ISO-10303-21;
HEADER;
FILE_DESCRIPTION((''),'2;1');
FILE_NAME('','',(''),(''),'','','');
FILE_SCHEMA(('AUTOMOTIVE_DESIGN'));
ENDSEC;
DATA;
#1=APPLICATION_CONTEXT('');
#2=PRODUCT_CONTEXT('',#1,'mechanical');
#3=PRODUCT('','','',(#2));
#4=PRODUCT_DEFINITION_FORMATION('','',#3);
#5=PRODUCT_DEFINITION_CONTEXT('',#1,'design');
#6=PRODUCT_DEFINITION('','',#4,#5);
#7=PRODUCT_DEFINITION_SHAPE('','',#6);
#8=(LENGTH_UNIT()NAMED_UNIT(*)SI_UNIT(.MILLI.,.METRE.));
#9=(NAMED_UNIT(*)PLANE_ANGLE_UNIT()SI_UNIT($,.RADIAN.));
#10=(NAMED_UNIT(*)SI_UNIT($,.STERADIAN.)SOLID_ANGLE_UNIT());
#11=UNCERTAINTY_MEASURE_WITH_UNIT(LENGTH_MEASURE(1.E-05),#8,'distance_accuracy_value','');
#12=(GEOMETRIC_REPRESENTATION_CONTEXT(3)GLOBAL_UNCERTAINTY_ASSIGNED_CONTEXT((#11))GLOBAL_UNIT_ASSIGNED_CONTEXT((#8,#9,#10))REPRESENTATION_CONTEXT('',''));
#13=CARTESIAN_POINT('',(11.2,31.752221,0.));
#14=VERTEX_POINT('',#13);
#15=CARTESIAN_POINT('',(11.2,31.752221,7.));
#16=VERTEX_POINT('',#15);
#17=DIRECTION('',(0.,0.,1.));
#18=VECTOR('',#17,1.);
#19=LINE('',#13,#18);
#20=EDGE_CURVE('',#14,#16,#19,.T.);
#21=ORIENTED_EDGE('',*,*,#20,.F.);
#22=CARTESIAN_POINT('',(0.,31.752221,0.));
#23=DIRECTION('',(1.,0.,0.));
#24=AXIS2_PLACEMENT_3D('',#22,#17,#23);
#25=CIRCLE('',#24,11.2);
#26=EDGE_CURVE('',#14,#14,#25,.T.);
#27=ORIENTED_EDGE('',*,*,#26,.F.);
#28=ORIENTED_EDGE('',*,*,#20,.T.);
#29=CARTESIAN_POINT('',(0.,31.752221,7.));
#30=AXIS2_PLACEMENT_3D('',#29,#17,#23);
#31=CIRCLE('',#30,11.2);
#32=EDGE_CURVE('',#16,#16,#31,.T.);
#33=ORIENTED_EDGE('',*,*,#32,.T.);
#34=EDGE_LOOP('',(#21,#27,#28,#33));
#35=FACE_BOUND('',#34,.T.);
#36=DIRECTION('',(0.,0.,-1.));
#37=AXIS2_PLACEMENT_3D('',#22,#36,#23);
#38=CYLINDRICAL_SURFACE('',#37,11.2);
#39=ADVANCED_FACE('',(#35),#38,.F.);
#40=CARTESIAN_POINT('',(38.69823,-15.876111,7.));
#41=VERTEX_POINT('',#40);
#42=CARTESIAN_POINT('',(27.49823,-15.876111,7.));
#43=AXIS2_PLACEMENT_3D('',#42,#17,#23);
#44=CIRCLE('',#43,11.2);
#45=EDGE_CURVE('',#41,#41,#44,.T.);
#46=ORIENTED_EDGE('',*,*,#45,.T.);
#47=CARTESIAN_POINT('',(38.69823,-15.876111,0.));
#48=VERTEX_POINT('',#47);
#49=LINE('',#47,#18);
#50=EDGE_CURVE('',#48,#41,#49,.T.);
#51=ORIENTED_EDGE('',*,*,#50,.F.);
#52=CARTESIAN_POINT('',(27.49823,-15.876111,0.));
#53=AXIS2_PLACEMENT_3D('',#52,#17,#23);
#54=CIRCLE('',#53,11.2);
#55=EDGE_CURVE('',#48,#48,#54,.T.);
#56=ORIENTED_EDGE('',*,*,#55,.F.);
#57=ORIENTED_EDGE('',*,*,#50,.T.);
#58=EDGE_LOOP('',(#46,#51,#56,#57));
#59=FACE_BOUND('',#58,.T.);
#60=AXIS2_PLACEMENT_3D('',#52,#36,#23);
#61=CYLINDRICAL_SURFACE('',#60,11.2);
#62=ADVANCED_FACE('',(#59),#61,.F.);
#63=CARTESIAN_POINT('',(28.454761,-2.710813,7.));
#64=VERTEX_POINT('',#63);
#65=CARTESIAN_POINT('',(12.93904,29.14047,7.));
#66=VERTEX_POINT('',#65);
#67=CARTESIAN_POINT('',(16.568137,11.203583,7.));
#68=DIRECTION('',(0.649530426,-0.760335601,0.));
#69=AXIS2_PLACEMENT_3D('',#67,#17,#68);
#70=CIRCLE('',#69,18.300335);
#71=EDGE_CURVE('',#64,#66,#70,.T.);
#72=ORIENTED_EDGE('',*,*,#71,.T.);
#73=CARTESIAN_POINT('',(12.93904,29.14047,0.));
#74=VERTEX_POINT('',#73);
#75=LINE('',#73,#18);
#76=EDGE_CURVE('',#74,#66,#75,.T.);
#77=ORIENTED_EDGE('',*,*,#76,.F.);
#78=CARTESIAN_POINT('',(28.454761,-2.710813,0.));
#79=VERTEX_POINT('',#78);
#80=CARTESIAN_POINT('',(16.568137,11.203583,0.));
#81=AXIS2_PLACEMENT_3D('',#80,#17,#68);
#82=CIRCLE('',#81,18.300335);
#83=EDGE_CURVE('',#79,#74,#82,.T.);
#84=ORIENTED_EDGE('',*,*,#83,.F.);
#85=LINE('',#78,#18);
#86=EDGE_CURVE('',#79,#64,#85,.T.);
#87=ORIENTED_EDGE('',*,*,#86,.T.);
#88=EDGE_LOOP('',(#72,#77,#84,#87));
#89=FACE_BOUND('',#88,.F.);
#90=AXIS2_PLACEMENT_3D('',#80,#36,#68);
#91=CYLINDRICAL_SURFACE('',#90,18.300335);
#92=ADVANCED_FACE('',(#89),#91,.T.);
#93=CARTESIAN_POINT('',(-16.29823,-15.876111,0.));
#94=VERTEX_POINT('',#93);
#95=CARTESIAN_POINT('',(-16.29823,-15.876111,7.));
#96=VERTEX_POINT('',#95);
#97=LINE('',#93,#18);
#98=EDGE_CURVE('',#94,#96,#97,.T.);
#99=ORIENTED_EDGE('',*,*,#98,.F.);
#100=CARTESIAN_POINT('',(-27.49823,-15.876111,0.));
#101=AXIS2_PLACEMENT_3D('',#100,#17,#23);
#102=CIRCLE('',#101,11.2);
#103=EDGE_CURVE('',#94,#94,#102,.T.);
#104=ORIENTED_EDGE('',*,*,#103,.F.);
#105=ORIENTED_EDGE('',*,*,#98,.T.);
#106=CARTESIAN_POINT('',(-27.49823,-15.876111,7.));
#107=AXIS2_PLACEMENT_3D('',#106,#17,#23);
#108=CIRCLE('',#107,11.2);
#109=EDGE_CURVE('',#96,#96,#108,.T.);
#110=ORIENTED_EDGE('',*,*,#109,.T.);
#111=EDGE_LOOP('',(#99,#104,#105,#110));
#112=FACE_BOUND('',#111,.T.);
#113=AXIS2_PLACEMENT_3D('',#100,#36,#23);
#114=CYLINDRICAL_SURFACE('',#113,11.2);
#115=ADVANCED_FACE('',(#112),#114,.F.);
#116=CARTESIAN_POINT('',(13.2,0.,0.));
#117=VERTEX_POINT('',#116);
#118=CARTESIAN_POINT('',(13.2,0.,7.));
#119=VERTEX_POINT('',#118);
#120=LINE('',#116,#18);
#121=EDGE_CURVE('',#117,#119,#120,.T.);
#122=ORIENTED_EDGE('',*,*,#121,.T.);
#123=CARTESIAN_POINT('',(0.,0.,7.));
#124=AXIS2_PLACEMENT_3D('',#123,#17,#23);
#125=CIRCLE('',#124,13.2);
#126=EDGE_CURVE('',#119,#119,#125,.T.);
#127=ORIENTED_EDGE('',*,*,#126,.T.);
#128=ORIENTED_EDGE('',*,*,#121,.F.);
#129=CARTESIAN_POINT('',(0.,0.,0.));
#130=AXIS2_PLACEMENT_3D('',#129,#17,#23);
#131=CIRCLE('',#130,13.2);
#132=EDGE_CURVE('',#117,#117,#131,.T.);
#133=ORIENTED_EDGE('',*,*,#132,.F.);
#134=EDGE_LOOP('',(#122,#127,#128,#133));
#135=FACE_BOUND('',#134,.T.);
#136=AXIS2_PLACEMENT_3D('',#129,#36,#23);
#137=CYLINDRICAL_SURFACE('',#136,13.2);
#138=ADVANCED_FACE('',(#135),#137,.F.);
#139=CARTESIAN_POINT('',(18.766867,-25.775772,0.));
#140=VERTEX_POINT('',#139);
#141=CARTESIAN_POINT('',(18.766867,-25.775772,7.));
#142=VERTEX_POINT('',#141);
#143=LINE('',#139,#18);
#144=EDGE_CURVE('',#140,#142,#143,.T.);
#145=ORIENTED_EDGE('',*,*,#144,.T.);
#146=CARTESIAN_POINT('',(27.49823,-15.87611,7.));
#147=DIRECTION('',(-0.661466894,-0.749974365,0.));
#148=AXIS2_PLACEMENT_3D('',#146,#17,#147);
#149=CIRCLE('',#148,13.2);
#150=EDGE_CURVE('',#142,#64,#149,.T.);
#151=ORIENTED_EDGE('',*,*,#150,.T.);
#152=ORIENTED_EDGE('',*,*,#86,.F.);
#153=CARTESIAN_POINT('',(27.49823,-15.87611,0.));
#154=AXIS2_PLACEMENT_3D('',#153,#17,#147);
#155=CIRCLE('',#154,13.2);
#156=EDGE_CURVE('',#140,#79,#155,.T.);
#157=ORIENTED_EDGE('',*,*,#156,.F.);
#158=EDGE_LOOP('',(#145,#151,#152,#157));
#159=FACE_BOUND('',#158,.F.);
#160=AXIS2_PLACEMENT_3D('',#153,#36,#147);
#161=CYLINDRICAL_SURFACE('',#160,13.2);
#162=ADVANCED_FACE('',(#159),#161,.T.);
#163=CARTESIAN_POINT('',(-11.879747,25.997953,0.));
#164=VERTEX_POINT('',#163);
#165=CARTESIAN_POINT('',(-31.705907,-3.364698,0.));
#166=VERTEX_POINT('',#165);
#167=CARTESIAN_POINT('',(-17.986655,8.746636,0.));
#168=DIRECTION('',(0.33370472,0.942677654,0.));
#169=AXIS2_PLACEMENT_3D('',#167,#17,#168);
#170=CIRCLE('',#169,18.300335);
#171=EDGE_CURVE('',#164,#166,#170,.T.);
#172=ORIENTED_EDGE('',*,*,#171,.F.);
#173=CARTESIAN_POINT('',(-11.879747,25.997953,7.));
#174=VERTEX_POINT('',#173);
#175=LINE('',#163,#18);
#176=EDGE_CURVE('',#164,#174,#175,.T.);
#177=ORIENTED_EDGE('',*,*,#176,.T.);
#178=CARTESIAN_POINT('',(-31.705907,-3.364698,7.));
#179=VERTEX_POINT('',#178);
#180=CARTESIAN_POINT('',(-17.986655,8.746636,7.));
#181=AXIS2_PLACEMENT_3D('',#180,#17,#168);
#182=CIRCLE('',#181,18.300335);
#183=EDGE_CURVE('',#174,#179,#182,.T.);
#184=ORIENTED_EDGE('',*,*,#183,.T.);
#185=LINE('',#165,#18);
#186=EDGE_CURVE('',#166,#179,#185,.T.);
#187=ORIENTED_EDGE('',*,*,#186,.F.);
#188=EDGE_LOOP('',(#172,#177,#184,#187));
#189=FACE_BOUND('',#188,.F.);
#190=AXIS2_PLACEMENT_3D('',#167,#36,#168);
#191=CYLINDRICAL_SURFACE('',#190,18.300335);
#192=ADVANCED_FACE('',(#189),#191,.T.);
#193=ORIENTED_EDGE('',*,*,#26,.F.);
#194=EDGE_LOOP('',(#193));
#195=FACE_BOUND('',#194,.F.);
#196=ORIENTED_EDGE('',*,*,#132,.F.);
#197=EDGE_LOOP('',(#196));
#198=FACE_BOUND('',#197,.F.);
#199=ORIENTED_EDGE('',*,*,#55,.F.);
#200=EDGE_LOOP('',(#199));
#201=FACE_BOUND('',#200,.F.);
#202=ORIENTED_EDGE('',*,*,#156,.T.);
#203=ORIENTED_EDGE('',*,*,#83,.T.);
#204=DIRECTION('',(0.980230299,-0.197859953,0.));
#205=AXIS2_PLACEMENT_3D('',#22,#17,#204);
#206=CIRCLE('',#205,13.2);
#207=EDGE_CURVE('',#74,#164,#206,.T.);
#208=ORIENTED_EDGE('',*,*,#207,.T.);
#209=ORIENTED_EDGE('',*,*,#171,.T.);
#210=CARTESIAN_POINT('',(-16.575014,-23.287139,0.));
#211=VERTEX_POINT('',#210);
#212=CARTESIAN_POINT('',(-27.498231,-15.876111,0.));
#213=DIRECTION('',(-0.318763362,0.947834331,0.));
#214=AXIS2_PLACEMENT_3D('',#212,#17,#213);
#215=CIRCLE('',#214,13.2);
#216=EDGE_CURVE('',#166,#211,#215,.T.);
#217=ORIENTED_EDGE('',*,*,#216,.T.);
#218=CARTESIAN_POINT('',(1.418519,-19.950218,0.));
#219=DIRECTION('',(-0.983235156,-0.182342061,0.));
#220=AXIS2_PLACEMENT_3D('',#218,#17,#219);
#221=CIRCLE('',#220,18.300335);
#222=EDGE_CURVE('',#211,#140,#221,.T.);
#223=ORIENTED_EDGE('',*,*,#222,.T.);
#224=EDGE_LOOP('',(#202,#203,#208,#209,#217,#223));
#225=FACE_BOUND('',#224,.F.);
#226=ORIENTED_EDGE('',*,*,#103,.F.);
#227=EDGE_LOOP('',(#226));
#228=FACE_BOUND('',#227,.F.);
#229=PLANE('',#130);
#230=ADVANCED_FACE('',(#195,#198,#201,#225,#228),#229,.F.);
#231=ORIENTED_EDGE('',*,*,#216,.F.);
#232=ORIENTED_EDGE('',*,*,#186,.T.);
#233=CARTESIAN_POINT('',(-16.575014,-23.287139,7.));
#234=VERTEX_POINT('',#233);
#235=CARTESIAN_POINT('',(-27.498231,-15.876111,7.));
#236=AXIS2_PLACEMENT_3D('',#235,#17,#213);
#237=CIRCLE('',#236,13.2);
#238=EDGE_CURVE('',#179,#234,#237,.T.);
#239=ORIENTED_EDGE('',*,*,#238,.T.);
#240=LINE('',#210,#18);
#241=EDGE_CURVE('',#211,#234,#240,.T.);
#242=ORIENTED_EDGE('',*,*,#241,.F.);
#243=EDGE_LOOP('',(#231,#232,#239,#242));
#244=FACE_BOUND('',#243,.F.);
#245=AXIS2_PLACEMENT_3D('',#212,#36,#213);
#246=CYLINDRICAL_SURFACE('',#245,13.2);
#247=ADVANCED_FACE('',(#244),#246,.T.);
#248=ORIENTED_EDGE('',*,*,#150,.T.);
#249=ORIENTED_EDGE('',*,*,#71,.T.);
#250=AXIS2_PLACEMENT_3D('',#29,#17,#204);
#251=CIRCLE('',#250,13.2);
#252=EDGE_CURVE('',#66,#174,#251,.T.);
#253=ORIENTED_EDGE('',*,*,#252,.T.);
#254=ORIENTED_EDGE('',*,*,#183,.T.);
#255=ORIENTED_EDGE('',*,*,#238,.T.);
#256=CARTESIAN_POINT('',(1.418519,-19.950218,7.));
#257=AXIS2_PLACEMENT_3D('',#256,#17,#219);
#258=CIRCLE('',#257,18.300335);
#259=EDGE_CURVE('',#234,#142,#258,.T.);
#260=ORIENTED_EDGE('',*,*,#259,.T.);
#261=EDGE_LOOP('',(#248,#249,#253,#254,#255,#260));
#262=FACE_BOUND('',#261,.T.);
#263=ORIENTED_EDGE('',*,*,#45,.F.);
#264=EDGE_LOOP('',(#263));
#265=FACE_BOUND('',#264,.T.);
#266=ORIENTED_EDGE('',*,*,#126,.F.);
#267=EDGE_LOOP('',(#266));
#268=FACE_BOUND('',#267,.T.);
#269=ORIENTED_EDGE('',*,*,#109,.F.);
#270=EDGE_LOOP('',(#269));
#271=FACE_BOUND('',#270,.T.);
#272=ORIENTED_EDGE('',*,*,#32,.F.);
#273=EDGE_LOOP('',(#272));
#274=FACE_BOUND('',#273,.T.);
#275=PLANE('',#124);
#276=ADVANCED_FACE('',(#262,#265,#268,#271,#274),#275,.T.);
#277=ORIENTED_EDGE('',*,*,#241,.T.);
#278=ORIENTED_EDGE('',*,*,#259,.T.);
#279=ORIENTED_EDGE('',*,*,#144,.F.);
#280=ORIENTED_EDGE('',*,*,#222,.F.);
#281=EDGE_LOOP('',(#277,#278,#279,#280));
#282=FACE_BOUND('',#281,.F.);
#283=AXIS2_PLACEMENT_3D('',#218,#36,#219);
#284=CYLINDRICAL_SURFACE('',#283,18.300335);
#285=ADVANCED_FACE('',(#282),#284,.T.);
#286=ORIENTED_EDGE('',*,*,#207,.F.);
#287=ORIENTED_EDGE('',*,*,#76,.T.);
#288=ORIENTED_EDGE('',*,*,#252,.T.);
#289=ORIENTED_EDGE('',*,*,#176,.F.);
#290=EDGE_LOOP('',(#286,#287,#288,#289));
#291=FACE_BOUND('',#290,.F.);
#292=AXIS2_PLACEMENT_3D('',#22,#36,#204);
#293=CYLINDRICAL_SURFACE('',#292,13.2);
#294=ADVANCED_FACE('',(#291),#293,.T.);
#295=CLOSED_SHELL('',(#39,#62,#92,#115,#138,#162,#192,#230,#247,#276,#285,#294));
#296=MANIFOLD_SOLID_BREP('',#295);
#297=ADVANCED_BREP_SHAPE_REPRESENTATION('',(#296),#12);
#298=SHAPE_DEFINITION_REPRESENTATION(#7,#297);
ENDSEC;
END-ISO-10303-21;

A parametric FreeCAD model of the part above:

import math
import FreeCAD as App
import Part
import Sketcher
Q = App.Units.Quantity

doc = App.newDocument("Part")
body = doc.addObject("PartDesign::Body", "Body")

sketch1 = body.newObject("Sketcher::SketchObject", "Sketch")
sketch1.AttachmentSupport = (doc.getObject("XY_Plane"), [""])
sketch1.MapMode = "FlatFace"
sketch1.addGeometry(Part.ArcOfCircle(Part.Circle(App.Vector(16.568137, 11.203583, 0), App.Vector(0, 0, 1), 18.300335), math.radians(-49.493793), math.radians(101.438013)), False)
sketch1.addGeometry(Part.ArcOfCircle(Part.Circle(App.Vector(0, 31.752221, 0), App.Vector(0, 0, 1), 13.2), math.radians(-11.411843), math.radians(205.844449)), False)
sketch1.addGeometry(Part.ArcOfCircle(Part.Circle(App.Vector(-17.986655, 8.746636, 0), App.Vector(0, 0, 1), 18.300335), math.radians(70.506208), math.radians(221.438014)), False)
sketch1.addGeometry(Part.ArcOfCircle(Part.Circle(App.Vector(-27.498231, -15.876111, 0), App.Vector(0, 0, 1), 13.2), math.radians(108.588155), math.radians(325.844453)), False)
sketch1.addGeometry(Part.ArcOfCircle(Part.Circle(App.Vector(1.418519, -19.950218, 0), App.Vector(0, 0, 1), 18.300335), math.radians(-169.493792), math.radians(-18.561987)), False)
sketch1.addGeometry(Part.ArcOfCircle(Part.Circle(App.Vector(27.49823, -15.87611, 0), App.Vector(0, 0, 1), 13.2), math.radians(-131.411843), math.radians(85.84445)), False)
sketch1.addGeometry(Part.Circle(App.Vector(-27.49823, -15.876111, 0), App.Vector(0, 0, 1), 11.2), False)
sketch1.addGeometry(Part.Circle(App.Vector(27.49823, -15.876111, 0), App.Vector(0, 0, 1), 11.2), False)
sketch1.addGeometry(Part.Circle(App.Vector(0, 0, 0), App.Vector(0, 0, 1), 13.2), False)
sketch1.addGeometry(Part.Circle(App.Vector(0, 31.752221, 0), App.Vector(0, 0, 1), 11.2), False)
sketch1.addConstraint(Sketcher.Constraint("Coincident", 0, 2, 1, 1))
sketch1.addConstraint(Sketcher.Constraint("Coincident", 1, 2, 2, 1))
sketch1.addConstraint(Sketcher.Constraint("Coincident", 2, 2, 3, 1))
sketch1.addConstraint(Sketcher.Constraint("Coincident", 3, 2, 4, 1))
sketch1.addConstraint(Sketcher.Constraint("Coincident", 4, 2, 5, 1))
sketch1.addConstraint(Sketcher.Constraint("Coincident", 5, 2, 0, 1))
sketch1.addConstraint(Sketcher.Constraint("Coincident", 8, 3, -1, 1))
sketch1.addConstraint(Sketcher.Constraint("Coincident", 6, 3, 3, 3))
sketch1.addConstraint(Sketcher.Constraint("Coincident", 7, 3, 5, 3))
sketch1.addConstraint(Sketcher.Constraint("Coincident", 9, 3, 1, 3))
sketch1.addConstraint(Sketcher.Constraint("Equal", 0, 2))
sketch1.addConstraint(Sketcher.Constraint("Equal", 1, 3))
sketch1.addConstraint(Sketcher.Constraint("Equal", 2, 4))
sketch1.addConstraint(Sketcher.Constraint("Equal", 3, 5))
sketch1.addConstraint(Sketcher.Constraint("Equal", 6, 7))
sketch1.addConstraint(Sketcher.Constraint("Equal", 5, 8))
sketch1.addConstraint(Sketcher.Constraint("Equal", 7, 9))
sketch1.addConstraint(Sketcher.Constraint("Symmetric", 3, 3, 5, 3, -2))
sketch1.addConstraint(Sketcher.Constraint("PointOnObject", 1, 3, -2))
sketch1.addConstraint(Sketcher.Constraint("Diameter", 6, Q("22.4 mm")))
sketch1.addConstraint(Sketcher.Constraint("Diameter", 8, Q("26.4 mm")))
sketch1.addConstraint(Sketcher.Constraint("Radius", 0, Q("18.300335 mm")))
sketch1.addConstraint(Sketcher.Constraint("DistanceY", 4, 3, 0, 3, Q("31.153801 mm")))
sketch1.addConstraint(Sketcher.Constraint("DistanceY", -1, 1, 1, 3, Q("31.752221 mm")))
sketch1.addConstraint(Sketcher.Constraint("DistanceX", 3, 3, -1, 1, Q("27.498231 mm")))
sketch1.addConstraint(Sketcher.Constraint("DistanceY", 3, 3, -1, 1, Q("15.876111 mm")))
sketch1.addConstraint(Sketcher.Constraint("DistanceX", -1, 1, 4, 3, Q("1.418519 mm")))
sketch1.addConstraint(Sketcher.Constraint("DistanceY", 4, 3, -1, 1, Q("19.950218 mm")))
sketch1.addConstraint(Sketcher.Constraint("DistanceX", -1, 1, 0, 2, Q("12.93904 mm")))
sketch1.addConstraint(Sketcher.Constraint("DistanceY", 1, 2, 9, 3, Q("5.754268 mm")))
sketch1.addConstraint(Sketcher.Constraint("DistanceX", 2, 3, 1, 2, Q("6.106908 mm")))
pad1 = body.newObject("PartDesign::Pad", "Pad")
pad1.Profile = sketch1
pad1.Length = 7

doc.recompute()
